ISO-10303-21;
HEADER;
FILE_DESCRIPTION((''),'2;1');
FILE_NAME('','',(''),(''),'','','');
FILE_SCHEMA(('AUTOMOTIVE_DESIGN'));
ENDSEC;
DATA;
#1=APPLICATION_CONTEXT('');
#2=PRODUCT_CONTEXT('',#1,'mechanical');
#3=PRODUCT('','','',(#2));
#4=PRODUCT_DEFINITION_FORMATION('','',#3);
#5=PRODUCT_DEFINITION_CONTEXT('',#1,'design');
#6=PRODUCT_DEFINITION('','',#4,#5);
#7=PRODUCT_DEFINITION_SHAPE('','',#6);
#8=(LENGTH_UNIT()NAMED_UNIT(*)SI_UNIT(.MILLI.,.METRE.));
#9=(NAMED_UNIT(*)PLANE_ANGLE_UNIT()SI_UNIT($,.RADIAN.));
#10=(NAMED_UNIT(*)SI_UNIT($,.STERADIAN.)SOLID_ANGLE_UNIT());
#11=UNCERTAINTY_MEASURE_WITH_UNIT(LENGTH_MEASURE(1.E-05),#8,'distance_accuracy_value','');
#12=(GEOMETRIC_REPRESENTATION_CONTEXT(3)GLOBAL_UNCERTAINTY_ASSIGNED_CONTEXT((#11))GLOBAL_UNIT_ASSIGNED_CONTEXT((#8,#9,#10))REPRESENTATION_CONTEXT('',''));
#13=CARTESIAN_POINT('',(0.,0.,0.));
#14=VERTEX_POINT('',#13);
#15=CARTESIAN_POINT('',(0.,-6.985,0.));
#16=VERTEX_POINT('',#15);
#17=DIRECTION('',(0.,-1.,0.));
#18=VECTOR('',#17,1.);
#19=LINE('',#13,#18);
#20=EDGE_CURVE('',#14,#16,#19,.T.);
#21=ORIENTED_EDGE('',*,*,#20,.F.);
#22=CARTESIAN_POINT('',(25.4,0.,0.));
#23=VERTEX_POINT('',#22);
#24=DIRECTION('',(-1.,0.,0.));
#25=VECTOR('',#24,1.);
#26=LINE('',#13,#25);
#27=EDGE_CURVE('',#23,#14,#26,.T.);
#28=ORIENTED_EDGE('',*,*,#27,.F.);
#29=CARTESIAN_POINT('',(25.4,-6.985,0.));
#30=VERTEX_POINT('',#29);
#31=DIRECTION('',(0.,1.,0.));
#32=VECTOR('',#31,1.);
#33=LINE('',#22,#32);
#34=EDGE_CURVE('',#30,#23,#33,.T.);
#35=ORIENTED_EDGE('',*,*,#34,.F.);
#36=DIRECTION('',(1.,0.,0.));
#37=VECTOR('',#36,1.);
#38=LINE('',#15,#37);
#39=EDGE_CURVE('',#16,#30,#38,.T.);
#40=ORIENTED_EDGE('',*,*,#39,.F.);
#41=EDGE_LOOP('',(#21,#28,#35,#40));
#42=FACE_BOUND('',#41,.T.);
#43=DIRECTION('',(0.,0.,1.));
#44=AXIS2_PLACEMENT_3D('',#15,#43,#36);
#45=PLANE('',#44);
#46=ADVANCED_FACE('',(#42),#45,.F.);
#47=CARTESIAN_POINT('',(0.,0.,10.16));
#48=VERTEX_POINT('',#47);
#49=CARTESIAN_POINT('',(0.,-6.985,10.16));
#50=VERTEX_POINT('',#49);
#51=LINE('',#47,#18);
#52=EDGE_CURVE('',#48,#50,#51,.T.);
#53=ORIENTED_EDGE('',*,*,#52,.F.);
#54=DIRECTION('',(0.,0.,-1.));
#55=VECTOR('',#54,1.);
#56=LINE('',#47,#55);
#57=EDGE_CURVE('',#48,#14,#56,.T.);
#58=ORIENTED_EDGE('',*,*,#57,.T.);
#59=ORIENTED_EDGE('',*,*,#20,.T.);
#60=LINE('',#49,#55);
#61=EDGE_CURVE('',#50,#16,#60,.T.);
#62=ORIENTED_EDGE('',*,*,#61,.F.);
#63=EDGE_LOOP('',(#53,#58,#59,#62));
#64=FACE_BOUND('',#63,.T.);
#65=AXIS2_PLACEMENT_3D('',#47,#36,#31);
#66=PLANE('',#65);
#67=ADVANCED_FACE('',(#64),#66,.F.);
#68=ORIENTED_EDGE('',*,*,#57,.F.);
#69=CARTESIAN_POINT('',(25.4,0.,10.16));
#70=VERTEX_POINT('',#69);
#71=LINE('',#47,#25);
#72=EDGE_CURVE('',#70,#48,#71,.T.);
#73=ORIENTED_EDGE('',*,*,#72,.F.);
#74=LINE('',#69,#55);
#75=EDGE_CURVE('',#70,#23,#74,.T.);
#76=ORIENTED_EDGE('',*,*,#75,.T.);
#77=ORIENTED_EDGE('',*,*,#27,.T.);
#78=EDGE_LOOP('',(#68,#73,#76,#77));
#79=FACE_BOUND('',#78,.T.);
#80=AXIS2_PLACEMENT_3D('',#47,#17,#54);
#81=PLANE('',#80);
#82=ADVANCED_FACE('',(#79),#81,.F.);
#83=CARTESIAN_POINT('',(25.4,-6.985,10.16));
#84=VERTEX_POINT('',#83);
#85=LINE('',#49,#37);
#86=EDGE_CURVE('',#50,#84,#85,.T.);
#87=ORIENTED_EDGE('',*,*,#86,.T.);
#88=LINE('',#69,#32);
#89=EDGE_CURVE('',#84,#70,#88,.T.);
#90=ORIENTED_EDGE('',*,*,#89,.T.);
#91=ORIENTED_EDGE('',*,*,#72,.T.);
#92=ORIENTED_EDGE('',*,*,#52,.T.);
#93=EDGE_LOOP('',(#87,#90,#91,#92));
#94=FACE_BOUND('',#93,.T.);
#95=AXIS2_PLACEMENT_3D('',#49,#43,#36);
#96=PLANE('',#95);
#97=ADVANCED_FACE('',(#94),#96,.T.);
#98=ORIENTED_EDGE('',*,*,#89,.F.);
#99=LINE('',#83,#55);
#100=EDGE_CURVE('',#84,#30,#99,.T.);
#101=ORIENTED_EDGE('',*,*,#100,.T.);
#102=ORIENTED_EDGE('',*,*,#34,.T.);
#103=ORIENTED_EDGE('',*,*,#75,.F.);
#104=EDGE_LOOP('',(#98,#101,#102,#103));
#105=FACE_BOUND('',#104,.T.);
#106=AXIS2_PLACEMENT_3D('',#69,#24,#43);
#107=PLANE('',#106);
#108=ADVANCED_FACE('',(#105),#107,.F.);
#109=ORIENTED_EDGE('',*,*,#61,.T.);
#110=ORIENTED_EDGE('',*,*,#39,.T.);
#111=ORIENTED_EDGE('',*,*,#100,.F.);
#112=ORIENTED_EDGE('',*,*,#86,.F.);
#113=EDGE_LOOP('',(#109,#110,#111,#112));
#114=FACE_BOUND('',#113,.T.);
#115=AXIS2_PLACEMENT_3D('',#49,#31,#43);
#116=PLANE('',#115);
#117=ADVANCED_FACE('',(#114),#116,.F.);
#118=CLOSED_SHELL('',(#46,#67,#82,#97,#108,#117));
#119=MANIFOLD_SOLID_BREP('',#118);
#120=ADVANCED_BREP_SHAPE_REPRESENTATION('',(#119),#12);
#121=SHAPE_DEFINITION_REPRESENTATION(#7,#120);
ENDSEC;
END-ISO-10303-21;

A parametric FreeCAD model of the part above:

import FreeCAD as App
import Part
import Sketcher
Q = App.Units.Quantity


def add_polygon(sketch, points):
    """Adds a closed chain of lines whose ends are joined by coincident constraints."""
    first, n = sketch.GeometryCount, len(points)
    for a, b in zip(points, points[1:] + points[:1]):
        sketch.addGeometry(Part.LineSegment(App.Vector(*a, 0), App.Vector(*b, 0)), False)
    for i in range(n):
        sketch.addConstraint(Sketcher.Constraint("Coincident", first + i, 2, first + (i + 1) % n, 1))

doc = App.newDocument("Part")
body = doc.addObject("PartDesign::Body", "Body")

sketch1 = body.newObject("Sketcher::SketchObject", "Sketch")
sketch1.AttachmentSupport = (doc.getObject("XY_Plane"), [""])
sketch1.MapMode = "FlatFace"
add_polygon(sketch1, [(0, 0), (0, -6.985), (25.4, -6.985), (25.4, 0)])
sketch1.addConstraint(Sketcher.Constraint("Vertical", 0))
sketch1.addConstraint(Sketcher.Constraint("Horizontal", 1))
sketch1.addConstraint(Sketcher.Constraint("Vertical", 2))
sketch1.addConstraint(Sketcher.Constraint("Horizontal", 3))
sketch1.addConstraint(Sketcher.Constraint("Coincident", 3, 2, -1, 1))
sketch1.addConstraint(Sketcher.Constraint("DistanceX", 1, 1, 1, 2, Q("1 in")))
sketch1.addConstraint(Sketcher.Constraint("DistanceY", 0, 2, 0, 1, Q("0.275 in")))
pad1 = body.newObject("PartDesign::Pad", "Pad")
pad1.Profile = sketch1
pad1.Length = Q("0.4 in")

doc.recompute()
